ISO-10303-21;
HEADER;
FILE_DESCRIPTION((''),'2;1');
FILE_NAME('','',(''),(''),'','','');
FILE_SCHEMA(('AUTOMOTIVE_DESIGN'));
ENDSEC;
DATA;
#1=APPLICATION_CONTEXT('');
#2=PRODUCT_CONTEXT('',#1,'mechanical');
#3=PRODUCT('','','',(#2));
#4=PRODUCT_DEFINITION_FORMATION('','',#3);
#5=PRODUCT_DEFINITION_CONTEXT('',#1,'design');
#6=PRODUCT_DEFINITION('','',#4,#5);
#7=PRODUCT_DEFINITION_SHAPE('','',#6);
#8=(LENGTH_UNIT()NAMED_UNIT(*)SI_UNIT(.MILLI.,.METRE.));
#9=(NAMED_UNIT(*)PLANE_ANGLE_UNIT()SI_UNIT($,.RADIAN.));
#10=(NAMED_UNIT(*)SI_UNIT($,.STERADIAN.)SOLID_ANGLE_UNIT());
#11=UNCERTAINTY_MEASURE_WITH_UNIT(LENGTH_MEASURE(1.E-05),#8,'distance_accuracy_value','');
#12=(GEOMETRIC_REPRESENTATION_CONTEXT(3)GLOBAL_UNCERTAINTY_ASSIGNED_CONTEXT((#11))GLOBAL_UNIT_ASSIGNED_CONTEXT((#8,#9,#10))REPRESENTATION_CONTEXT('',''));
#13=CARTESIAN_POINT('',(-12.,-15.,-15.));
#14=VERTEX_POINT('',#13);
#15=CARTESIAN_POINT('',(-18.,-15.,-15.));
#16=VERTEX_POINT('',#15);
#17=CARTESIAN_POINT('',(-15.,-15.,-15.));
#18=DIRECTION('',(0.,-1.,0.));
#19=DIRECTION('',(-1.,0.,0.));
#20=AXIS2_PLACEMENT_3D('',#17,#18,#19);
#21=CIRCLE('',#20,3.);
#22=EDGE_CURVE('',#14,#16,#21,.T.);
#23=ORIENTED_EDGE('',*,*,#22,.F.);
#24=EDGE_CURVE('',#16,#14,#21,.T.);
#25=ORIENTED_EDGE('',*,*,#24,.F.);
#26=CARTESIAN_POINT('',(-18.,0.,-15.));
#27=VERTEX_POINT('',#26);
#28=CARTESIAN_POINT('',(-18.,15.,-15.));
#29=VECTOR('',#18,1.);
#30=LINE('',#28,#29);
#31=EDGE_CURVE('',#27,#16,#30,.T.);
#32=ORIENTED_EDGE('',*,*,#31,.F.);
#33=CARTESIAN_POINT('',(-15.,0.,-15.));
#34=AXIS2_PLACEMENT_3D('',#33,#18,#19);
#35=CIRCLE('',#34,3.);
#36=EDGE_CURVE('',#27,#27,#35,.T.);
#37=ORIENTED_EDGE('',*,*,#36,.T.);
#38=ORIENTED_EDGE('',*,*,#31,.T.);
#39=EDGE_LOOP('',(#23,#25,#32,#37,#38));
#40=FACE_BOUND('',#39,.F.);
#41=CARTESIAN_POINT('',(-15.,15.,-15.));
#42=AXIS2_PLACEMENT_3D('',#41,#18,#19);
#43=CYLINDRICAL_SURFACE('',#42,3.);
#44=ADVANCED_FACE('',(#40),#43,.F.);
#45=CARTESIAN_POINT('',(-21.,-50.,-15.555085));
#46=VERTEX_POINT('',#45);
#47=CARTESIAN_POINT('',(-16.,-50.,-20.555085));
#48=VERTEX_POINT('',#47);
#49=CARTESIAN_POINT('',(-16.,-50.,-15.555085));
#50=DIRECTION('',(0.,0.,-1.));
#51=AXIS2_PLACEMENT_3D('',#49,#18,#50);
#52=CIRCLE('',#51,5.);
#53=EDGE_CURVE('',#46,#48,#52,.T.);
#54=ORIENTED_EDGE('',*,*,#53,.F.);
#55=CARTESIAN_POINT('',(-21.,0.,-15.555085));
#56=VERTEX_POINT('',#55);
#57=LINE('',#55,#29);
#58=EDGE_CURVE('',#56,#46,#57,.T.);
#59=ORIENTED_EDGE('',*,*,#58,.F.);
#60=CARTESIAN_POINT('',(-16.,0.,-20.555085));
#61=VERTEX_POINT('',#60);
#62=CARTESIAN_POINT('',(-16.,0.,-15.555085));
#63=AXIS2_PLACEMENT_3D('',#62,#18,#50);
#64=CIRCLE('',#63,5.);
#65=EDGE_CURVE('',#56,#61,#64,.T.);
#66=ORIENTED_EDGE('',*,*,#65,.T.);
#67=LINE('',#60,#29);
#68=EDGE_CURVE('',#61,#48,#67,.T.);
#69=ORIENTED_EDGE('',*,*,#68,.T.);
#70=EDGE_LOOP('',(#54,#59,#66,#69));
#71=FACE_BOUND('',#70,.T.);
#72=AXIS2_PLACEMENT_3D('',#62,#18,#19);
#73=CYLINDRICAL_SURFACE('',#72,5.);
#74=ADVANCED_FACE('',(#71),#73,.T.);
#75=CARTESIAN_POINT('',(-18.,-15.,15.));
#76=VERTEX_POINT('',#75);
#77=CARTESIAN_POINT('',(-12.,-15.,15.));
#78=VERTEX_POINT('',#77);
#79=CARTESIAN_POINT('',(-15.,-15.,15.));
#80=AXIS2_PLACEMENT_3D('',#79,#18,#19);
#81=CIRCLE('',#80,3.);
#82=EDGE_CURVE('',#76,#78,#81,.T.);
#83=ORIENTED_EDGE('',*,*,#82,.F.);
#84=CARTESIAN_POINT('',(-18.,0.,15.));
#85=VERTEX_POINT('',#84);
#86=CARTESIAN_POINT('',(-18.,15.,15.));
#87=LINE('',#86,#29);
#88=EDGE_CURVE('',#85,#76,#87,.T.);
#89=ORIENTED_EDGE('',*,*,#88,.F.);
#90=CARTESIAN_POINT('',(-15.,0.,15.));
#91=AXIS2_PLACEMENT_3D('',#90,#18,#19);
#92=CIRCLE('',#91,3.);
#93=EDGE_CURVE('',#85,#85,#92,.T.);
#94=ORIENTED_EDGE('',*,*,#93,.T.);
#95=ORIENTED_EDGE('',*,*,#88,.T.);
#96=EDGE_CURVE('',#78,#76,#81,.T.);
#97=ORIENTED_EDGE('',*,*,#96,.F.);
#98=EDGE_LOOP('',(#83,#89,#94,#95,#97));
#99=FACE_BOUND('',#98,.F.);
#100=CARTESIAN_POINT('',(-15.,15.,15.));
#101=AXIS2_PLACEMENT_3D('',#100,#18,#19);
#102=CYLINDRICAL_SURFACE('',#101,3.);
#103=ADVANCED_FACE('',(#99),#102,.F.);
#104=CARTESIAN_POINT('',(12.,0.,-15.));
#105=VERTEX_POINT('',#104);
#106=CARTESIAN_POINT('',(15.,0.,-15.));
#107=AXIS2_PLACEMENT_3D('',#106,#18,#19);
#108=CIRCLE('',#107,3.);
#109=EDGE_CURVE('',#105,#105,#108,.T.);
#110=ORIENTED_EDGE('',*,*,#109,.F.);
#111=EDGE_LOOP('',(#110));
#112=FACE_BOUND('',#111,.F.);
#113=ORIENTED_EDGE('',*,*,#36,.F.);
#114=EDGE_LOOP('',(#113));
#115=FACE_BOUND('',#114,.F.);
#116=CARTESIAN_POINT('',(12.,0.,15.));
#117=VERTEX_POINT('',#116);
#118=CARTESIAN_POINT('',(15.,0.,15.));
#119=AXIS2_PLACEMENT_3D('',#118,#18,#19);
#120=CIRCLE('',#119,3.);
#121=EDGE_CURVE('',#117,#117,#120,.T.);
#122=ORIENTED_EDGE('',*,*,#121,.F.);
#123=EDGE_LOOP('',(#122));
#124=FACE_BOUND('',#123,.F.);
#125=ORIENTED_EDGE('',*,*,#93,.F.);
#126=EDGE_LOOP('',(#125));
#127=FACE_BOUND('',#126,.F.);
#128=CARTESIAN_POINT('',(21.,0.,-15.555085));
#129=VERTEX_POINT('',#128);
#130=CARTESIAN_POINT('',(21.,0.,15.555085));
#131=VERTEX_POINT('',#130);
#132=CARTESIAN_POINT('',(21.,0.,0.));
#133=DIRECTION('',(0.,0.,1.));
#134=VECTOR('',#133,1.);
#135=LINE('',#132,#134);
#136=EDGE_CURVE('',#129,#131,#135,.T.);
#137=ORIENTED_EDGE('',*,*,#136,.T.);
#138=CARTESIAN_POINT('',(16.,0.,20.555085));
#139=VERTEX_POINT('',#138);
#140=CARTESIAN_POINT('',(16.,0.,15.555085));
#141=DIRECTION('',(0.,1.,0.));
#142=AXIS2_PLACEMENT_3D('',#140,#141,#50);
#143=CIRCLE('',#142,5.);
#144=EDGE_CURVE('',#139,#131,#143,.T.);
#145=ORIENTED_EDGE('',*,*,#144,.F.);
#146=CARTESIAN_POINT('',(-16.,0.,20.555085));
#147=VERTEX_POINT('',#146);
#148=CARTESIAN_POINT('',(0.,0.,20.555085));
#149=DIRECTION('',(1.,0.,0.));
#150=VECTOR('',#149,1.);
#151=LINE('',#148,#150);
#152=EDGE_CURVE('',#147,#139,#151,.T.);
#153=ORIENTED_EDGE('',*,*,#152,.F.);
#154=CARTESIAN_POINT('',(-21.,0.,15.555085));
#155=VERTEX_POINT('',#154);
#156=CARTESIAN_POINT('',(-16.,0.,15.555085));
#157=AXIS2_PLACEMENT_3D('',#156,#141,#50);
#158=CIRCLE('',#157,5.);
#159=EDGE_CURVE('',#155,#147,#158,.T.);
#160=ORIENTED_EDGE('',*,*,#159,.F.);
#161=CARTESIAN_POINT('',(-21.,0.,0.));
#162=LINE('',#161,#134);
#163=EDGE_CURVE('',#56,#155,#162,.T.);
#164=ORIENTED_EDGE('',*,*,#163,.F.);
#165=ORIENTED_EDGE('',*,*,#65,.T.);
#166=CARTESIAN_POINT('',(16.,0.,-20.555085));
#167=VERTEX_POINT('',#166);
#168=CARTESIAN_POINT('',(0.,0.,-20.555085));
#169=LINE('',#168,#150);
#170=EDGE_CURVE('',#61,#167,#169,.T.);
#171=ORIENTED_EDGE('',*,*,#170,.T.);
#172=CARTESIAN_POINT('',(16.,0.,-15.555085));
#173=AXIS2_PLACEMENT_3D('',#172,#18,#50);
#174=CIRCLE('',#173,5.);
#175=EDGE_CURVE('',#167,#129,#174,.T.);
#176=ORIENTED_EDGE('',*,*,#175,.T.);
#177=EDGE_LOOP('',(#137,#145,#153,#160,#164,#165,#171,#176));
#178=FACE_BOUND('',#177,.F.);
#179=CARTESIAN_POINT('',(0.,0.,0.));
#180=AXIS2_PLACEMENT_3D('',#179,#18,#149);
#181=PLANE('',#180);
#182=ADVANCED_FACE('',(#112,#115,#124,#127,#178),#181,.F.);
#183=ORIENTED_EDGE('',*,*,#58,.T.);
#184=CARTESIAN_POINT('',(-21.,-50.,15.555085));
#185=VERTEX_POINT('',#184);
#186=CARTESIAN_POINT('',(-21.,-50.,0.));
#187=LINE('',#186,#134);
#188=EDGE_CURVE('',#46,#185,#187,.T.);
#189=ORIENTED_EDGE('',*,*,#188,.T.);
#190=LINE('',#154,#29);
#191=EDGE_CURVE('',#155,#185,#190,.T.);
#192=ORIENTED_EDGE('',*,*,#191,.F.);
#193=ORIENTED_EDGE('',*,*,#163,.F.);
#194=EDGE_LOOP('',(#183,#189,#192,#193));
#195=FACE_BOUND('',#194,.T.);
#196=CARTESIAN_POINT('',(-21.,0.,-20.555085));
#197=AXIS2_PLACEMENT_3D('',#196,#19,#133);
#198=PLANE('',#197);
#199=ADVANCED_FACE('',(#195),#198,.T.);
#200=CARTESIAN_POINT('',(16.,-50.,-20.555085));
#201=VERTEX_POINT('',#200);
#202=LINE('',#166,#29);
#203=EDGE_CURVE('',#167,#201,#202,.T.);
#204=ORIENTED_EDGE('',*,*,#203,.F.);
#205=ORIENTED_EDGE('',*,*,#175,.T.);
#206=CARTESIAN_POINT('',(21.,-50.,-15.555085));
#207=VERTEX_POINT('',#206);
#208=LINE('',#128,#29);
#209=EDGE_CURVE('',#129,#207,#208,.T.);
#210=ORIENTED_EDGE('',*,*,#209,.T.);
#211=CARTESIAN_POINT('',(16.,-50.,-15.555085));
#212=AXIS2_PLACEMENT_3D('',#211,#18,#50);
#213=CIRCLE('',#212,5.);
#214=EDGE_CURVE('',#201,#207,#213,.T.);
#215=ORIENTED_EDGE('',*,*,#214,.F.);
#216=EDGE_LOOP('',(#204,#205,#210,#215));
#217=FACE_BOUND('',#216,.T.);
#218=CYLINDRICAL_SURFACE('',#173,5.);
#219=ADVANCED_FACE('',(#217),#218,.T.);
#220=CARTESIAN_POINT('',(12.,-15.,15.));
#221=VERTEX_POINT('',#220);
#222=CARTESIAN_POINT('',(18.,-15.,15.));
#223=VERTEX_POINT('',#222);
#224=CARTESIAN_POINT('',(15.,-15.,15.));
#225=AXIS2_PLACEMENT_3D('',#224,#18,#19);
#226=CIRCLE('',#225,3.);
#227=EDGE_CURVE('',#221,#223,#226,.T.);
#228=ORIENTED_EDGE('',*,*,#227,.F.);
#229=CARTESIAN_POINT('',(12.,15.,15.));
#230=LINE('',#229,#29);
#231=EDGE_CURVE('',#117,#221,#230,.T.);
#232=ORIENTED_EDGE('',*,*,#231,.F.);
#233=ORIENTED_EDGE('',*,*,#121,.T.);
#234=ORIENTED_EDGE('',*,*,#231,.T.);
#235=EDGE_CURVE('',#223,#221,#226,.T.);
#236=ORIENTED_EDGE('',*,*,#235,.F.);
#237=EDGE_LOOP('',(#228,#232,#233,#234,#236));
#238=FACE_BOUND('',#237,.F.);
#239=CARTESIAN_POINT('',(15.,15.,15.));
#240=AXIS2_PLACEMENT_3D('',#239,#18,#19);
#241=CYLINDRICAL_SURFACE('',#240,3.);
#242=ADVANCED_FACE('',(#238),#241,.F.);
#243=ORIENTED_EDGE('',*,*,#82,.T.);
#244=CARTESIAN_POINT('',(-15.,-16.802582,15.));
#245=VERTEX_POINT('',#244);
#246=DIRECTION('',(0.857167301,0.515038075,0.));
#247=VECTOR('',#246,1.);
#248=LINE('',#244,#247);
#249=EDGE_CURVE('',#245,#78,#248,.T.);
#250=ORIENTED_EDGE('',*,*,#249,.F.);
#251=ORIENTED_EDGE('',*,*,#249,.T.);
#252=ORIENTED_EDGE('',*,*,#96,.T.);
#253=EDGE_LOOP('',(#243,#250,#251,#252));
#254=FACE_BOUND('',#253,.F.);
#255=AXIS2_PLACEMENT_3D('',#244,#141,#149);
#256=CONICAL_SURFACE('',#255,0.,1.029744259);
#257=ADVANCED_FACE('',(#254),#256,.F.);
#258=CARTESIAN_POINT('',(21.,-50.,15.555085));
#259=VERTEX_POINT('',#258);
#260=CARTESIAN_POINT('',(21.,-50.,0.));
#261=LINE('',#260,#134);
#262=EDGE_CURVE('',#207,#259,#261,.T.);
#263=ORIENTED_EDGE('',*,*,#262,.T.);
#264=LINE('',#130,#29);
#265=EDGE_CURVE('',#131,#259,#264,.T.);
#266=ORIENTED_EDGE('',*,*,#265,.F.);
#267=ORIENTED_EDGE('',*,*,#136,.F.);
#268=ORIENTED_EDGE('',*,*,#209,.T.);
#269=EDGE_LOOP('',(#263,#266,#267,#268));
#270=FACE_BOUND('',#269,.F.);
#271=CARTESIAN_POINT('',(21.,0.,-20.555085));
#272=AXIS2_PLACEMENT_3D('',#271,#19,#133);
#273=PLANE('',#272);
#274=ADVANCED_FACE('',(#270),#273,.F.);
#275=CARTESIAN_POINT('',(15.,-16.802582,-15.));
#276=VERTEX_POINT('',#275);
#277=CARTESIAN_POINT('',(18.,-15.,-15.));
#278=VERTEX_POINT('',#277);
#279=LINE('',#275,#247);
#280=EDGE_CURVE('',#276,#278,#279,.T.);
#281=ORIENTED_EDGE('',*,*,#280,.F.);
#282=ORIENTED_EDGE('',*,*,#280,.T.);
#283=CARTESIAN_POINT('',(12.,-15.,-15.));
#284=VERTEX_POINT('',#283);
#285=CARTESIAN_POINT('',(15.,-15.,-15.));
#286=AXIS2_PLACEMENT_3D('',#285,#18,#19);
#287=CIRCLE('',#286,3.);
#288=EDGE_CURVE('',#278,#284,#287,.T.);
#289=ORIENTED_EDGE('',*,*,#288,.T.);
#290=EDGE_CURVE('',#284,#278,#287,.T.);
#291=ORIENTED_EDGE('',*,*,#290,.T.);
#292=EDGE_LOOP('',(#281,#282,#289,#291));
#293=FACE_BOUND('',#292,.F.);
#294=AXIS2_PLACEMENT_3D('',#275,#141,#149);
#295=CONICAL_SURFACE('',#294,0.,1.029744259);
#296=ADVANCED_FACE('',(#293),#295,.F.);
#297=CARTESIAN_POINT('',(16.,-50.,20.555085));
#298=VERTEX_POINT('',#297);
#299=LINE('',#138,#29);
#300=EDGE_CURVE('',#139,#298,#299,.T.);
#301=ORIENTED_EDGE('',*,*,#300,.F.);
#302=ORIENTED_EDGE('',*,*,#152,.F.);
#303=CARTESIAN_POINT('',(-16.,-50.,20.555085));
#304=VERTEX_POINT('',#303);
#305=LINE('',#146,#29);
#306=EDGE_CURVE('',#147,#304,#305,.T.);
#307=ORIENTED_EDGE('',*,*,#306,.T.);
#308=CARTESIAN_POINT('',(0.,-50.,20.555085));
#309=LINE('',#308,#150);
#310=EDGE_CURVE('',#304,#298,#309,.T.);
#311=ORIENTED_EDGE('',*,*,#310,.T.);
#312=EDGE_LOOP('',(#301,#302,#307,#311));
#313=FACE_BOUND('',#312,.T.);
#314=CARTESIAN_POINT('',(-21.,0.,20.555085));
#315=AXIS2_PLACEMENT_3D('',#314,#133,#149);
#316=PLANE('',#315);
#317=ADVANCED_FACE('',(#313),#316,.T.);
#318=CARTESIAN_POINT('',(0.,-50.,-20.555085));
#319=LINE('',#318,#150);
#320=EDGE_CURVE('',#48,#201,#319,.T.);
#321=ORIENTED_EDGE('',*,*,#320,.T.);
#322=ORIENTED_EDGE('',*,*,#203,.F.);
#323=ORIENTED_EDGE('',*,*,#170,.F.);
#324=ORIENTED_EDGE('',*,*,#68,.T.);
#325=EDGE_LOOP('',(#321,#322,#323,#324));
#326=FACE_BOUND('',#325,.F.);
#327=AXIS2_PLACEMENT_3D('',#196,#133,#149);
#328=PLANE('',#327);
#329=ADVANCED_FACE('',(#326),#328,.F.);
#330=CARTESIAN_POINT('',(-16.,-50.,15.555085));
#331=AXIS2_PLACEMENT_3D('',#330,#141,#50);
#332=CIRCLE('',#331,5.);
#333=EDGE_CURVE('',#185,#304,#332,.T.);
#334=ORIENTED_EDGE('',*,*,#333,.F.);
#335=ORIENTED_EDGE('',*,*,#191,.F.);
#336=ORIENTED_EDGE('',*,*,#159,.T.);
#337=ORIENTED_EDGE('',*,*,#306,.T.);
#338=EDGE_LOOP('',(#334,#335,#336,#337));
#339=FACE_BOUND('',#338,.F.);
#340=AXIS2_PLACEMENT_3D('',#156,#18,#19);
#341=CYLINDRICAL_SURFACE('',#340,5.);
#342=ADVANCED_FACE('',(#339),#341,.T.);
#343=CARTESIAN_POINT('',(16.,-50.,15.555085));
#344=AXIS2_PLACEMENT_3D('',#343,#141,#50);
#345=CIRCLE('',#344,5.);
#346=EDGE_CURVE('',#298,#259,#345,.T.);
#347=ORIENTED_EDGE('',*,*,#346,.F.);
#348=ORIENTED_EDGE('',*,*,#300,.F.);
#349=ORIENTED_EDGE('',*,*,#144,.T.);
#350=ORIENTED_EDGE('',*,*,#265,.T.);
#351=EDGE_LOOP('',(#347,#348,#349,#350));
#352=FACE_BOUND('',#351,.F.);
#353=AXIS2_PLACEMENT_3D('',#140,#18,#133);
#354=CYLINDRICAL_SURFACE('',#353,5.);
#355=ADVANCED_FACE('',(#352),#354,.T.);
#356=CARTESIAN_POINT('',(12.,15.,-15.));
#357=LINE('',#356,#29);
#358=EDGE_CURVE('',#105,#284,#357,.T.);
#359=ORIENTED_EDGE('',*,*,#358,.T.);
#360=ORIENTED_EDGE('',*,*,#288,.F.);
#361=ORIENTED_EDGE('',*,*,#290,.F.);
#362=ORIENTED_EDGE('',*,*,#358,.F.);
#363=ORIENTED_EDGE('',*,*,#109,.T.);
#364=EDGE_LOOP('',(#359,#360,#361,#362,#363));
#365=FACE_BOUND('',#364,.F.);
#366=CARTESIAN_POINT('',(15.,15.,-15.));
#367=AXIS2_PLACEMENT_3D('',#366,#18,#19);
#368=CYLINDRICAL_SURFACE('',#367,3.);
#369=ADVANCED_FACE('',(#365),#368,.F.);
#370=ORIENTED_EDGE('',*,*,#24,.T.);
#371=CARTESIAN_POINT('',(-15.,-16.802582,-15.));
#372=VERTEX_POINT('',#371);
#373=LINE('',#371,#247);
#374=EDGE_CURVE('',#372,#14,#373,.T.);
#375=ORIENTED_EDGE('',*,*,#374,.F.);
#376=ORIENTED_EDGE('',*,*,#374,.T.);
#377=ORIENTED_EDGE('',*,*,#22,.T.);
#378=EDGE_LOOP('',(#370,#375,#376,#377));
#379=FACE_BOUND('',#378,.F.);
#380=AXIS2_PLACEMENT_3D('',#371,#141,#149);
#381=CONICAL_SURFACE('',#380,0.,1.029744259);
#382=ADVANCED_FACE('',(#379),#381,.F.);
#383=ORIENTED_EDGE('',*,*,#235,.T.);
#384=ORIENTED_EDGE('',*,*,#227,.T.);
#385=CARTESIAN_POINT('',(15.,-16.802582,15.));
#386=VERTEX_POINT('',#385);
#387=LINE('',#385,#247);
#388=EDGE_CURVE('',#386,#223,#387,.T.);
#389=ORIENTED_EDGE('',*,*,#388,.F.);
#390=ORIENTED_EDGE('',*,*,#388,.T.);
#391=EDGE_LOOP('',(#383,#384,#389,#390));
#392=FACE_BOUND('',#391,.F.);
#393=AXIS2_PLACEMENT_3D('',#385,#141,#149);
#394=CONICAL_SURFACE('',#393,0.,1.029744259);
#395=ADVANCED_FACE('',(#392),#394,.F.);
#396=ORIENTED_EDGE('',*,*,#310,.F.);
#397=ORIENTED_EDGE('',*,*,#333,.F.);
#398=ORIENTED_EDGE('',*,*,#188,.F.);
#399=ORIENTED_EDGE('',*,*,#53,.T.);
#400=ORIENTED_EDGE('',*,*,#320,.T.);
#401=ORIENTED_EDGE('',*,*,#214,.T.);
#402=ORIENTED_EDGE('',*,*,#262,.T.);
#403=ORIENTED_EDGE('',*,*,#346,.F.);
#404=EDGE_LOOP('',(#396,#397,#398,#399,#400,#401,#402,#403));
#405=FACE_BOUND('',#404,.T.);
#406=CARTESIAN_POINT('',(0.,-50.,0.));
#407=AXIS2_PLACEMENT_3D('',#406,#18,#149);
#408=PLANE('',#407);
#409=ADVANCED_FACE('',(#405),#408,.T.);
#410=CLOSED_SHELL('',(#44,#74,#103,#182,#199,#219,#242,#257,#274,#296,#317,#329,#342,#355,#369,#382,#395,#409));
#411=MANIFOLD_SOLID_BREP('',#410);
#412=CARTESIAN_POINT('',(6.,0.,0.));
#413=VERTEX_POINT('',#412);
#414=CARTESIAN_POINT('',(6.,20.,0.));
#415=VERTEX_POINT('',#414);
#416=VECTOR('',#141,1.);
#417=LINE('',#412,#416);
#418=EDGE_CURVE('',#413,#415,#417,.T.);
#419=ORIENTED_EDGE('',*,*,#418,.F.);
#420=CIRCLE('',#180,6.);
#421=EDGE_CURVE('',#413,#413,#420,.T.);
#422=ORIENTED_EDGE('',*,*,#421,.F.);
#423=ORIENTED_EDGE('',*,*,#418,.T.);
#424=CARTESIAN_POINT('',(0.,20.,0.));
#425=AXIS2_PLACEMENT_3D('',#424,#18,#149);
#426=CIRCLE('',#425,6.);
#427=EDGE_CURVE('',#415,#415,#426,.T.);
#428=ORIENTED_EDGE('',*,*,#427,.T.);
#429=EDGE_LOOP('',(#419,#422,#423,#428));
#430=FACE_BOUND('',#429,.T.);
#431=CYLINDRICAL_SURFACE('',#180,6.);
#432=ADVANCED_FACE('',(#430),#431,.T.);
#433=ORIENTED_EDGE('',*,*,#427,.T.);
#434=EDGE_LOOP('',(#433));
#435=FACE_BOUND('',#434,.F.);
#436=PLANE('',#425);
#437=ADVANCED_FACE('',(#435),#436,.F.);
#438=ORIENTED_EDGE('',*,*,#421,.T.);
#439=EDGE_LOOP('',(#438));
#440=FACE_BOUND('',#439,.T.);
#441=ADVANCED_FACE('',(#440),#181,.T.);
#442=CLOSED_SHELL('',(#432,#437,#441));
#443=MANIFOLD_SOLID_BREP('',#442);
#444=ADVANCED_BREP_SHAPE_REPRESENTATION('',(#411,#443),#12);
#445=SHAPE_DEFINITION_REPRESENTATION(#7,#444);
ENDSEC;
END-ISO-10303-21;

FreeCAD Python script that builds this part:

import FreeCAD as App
import Part
import Sketcher


def edges_at(feature, points):
    """Names of the edges that pass closest to the given points."""
    edges = feature.Shape.Edges
    near = lambda p: min(range(len(edges)), key=lambda i: edges[i].distToShape(Part.Vertex(*p))[0])
    return sorted({f"Edge{near(p) + 1}" for p in points})

doc = App.newDocument("Part")
params = doc.addObject("Spreadsheet::Sheet", "Params")
for row, (alias, value) in enumerate([
    ("sketch1_width", "42 mm"),
    ("pad1_length", "50 mm"),
    ("sketch2_diameter", "6 mm"),
    ("hole_diameter", "6 mm"),
    ("hole_depth", "15 mm"),
    ("fillet_radius", "5 mm"),
    ("sketch3_diameter", "12 mm"),
    ("pad2_length", "20 mm"),
], start=1):
    params.set(f"A{row}", alias)
    params.set(f"B{row}", "=" + value)
    params.setAlias(f"B{row}", alias)

body = doc.addObject("PartDesign::Body", "Body")

# Sketch on XZ plane
sketch1 = body.newObject("Sketcher::SketchObject", "Sketch")
sketch1.AttachmentSupport = (doc.getObject("XZ_Plane"), [""])
sketch1.MapMode = "FlatFace"
sketch1.addGeometry([
    Part.LineSegment(App.Vector(-21, 21, 0), App.Vector(-21, -21, 0)),
    Part.LineSegment(App.Vector(-21, -21, 0), App.Vector(21, -21, 0)),
    Part.LineSegment(App.Vector(21, -21, 0), App.Vector(21, 21, 0)),
    Part.LineSegment(App.Vector(21, 21, 0), App.Vector(-21, 21, 0)),
], False)
sketch1.addConstraint([
    Sketcher.Constraint("Coincident", 0, 2, 1, 1),
    Sketcher.Constraint("Coincident", 1, 2, 2, 1),
    Sketcher.Constraint("Coincident", 2, 2, 3, 1),
    Sketcher.Constraint("Coincident", 3, 2, 0, 1),
    Sketcher.Constraint("Vertical", 0),
    Sketcher.Constraint("Horizontal", 1),
    Sketcher.Constraint("Vertical", 2),
    Sketcher.Constraint("Horizontal", 3),
    Sketcher.Constraint("Symmetric", 0, 2, 2, 2, -1, 1),
    Sketcher.Constraint("DistanceX", 1, 1, 1, 2, 42.0),
    Sketcher.Constraint("DistanceY", 0, 2, 0, 1, 41.110171),
])
sketch1.setExpression("Constraints[9]", "Params.sketch1_width")
pad1 = body.newObject("PartDesign::Pad", "Pad")
pad1.Profile = sketch1
pad1.setExpression("Length", "Params.pad1_length")

# Sketch on XZ plane
sketch2 = body.newObject("Sketcher::SketchObject", "Sketch001")
sketch2.AttachmentSupport = (doc.getObject("XZ_Plane"), [""])
sketch2.MapMode = "FlatFace"
sketch2.addGeometry([
    Part.Circle(App.Vector(15, -15, 0), App.Vector(0, 0, 1), 3),
    Part.Circle(App.Vector(15, 15, 0), App.Vector(0, 0, 1), 3),
    Part.Circle(App.Vector(-15, 15, 0), App.Vector(0, 0, 1), 3),
    Part.Circle(App.Vector(-15, -15, 0), App.Vector(0, 0, 1), 3),
], False)
sketch2.addConstraint([
    Sketcher.Constraint("Equal", 0, 1),
    Sketcher.Constraint("Equal", 1, 2),
    Sketcher.Constraint("Equal", 2, 3),
    Sketcher.Constraint("Symmetric", 0, 3, 2, 3, -1, 1),
    Sketcher.Constraint("Symmetric", 1, 3, 3, 3, -1, 1),
    Sketcher.Constraint("Symmetric", 1, 3, 2, 3, -2),
    Sketcher.Constraint("Diameter", 0, 6.0),
    Sketcher.Constraint("DistanceX", -1, 1, 0, 3, 15.0),
    Sketcher.Constraint("DistanceY", 0, 3, -1, 1, 15.0),
])
sketch2.setExpression("Constraints[6]", "Params.sketch2_diameter")
doc.recompute()
hole = body.newObject("PartDesign::Hole", "Hole")
hole.Profile = sketch2
hole.ThreadType = "None"
hole.setExpression("Diameter", "Params.hole_diameter")
hole.DepthType = "Dimension"
hole.setExpression("Depth", "Params.hole_depth")
hole.DrillPoint = "Angled"
hole.DrillPointAngle = 118
hole.Reversed = True
doc.recompute()

fillet = body.newObject("PartDesign::Fillet", "Fillet")
fillet.Base = (hole, edges_at(hole, [
    (21, -25, -20.555),
    (21, -25, 20.555),
    (-21, -25, -20.555),
    (-21, -25, 20.555),
]))
fillet.setExpression("Radius", "Params.fillet_radius")
body2 = doc.addObject("PartDesign::Body", "Body001")

# Sketch on XZ plane
sketch3 = body2.newObject("Sketcher::SketchObject", "Sketch002")
sketch3.AttachmentSupport = (doc.getObject("XZ_Plane001"), [""])
sketch3.MapMode = "FlatFace"
sketch3.addGeometry(Part.Circle(App.Vector(0, 0, 0), App.Vector(0, 0, 1), 6), False)
sketch3.addConstraint([
    Sketcher.Constraint("Coincident", 0, 3, -1, 1),
    Sketcher.Constraint("Diameter", 0, 12.0),
])
sketch3.setExpression("Constraints[1]", "Params.sketch3_diameter")
pad2 = body2.newObject("PartDesign::Pad", "Pad001")
pad2.Profile = sketch3
pad2.setExpression("Length", "Params.pad2_length")
pad2.Reversed = True

doc.recompute()
